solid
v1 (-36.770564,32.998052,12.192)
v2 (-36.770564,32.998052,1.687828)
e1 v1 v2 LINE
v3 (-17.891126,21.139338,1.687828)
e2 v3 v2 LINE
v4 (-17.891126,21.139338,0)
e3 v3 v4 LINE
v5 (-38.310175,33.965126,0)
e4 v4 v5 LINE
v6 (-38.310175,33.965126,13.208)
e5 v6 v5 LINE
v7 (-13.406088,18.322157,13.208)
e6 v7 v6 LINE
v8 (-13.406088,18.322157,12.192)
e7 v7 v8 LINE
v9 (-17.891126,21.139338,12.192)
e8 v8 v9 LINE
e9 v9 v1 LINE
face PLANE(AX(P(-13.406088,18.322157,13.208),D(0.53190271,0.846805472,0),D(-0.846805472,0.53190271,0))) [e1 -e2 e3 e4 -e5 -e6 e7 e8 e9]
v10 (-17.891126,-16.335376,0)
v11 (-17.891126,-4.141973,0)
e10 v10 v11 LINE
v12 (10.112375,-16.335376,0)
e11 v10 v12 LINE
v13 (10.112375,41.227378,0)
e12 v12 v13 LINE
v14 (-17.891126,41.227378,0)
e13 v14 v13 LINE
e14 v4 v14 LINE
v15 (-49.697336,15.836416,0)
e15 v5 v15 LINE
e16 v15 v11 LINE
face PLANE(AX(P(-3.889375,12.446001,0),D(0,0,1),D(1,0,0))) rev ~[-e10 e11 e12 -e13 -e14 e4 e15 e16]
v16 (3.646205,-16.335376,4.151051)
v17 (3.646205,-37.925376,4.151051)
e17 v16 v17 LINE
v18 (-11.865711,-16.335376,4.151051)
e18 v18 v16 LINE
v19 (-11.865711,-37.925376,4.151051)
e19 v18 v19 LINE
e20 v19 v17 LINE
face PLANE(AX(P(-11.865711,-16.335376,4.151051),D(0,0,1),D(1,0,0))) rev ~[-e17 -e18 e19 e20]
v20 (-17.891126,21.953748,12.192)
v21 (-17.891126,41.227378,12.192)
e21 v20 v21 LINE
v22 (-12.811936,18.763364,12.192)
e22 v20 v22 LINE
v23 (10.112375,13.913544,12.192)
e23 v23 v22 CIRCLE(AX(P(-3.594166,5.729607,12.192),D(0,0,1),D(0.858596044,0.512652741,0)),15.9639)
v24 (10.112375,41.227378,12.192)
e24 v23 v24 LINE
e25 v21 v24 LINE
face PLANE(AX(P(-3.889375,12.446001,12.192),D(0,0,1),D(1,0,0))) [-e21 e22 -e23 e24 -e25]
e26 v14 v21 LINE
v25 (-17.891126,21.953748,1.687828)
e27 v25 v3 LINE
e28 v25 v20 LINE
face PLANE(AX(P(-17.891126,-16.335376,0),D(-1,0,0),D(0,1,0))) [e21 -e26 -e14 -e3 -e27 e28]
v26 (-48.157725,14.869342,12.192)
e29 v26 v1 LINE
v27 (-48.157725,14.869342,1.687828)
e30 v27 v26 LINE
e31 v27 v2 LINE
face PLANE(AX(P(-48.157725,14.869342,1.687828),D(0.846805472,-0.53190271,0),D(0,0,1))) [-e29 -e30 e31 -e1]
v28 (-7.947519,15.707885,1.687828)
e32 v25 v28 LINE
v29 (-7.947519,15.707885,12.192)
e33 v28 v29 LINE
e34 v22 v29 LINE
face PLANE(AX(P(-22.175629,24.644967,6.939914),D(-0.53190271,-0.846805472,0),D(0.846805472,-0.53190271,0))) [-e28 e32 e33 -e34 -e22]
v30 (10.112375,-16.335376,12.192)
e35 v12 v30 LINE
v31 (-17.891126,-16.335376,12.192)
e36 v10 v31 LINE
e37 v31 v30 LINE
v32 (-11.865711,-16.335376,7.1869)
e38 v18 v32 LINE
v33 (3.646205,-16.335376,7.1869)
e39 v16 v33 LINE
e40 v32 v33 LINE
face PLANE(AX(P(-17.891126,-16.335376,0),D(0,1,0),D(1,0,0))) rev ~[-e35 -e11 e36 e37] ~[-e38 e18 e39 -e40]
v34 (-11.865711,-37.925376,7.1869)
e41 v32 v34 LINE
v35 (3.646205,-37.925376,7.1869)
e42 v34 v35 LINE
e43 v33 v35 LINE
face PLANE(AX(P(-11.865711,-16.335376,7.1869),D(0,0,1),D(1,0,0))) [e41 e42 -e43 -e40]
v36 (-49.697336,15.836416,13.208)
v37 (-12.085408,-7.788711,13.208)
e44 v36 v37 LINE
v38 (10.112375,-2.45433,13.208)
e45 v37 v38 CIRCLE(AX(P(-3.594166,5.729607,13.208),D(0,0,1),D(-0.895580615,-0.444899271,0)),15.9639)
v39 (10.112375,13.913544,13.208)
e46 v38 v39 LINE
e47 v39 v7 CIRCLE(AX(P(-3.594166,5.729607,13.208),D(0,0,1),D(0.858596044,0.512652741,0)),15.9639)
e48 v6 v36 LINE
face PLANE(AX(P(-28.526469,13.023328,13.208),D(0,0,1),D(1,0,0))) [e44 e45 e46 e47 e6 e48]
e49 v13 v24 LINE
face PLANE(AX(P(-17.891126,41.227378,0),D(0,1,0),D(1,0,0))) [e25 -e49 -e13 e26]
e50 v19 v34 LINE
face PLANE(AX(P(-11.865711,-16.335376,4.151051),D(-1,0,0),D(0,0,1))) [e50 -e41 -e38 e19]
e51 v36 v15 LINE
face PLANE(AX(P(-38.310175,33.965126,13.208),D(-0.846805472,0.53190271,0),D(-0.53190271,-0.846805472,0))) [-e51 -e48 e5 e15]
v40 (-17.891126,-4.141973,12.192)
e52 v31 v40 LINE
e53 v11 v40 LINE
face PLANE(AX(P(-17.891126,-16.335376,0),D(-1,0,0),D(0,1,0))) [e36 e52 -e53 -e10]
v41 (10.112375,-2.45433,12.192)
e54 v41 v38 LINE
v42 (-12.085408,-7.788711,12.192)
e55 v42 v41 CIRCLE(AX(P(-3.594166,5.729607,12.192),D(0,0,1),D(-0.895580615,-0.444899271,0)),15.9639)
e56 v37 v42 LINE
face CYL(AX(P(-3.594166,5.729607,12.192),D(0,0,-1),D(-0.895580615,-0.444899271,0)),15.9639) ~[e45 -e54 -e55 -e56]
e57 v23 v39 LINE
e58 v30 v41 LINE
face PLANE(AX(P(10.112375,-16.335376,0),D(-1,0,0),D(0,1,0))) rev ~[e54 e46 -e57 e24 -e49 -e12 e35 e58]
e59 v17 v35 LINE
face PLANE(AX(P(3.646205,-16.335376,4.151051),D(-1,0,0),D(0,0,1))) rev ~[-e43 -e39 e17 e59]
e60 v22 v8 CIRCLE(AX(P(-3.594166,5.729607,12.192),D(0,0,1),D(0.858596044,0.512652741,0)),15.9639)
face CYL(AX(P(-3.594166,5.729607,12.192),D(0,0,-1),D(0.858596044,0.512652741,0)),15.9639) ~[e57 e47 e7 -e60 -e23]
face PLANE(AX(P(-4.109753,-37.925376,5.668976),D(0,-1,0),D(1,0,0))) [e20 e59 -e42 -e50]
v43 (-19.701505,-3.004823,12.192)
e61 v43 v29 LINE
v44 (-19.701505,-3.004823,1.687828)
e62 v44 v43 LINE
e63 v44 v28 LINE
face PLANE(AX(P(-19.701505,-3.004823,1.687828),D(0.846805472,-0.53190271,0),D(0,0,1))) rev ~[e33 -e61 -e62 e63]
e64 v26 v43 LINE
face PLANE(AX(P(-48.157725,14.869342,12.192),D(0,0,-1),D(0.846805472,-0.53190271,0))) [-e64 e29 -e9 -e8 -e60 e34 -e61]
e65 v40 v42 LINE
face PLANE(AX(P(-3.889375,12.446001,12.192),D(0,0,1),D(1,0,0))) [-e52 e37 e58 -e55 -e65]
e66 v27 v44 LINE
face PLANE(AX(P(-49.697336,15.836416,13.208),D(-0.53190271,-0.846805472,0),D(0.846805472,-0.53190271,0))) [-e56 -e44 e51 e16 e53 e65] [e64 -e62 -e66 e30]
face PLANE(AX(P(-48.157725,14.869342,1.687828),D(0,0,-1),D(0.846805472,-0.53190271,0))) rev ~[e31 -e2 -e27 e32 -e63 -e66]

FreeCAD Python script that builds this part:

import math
import FreeCAD as App
import Part
import Sketcher
from FreeCAD import Vector
Q = App.Units.Quantity

doc = App.newDocument("Part")
body = doc.addObject("PartDesign::Body", "Body")

# Sketch on XY plane
sketch1 = body.newObject("Sketcher::SketchObject", "Sketch")
sketch1.AttachmentSupport = (doc.getObject("XY_Plane"), [""])
sketch1.MapMode = "FlatFace"
sketch1.addGeometry([
    Part.LineSegment(Vector(-18, 41, 0), Vector(-18, -16, 0)),
    Part.LineSegment(Vector(-18, -16, 0), Vector(10, -16, 0)),
    Part.LineSegment(Vector(10, -16, 0), Vector(10, 41, 0)),
    Part.LineSegment(Vector(10, 41, 0), Vector(-18, 41, 0)),
], False)
sketch1.addConstraint([
    Sketcher.Constraint("Coincident", 0, 2, 1, 1),
    Sketcher.Constraint("Coincident", 1, 2, 2, 1),
    Sketcher.Constraint("Coincident", 2, 2, 3, 1),
    Sketcher.Constraint("Coincident", 3, 2, 0, 1),
    Sketcher.Constraint("Vertical", 0),
    Sketcher.Constraint("Horizontal", 1),
    Sketcher.Constraint("Vertical", 2),
    Sketcher.Constraint("Horizontal", 3),
    Sketcher.Constraint("DistanceX", 1, 1, 1, 2, Q("1.1025 in")),
    Sketcher.Constraint("DistanceY", 0, 2, 0, 1, 57.562754),
    Sketcher.Constraint("DistanceX", 0, 2, -1, 1, 17.891126),
    Sketcher.Constraint("DistanceY", 0, 2, -1, 1, 16.335376),
])
pad1 = body.newObject("PartDesign::Pad", "Pad")
pad1.Profile = sketch1
pad1.Length = Q("0.48 in")

# Sketch on XZ plane
sketch2 = body.newObject("Sketcher::SketchObject", "Sketch001")
sketch2.AttachmentSupport = (doc.getObject("XZ_Plane"), [""])
sketch2.MapMode = "FlatFace"
sketch2.AttachmentOffset = App.Placement(Vector(0, 0, 16.335376), App.Rotation())
sketch2.addGeometry([
    Part.LineSegment(Vector(-11.9, 7.2, 0), Vector(-11.9, 4.2, 0)),
    Part.LineSegment(Vector(-11.9, 4.2, 0), Vector(3.6, 4.2, 0)),
    Part.LineSegment(Vector(3.6, 4.2, 0), Vector(3.6, 7.2, 0)),
    Part.LineSegment(Vector(3.6, 7.2, 0), Vector(-11.9, 7.2, 0)),
], False)
sketch2.addConstraint([
    Sketcher.Constraint("Coincident", 0, 2, 1, 1),
    Sketcher.Constraint("Coincident", 1, 2, 2, 1),
    Sketcher.Constraint("Coincident", 2, 2, 3, 1),
    Sketcher.Constraint("Coincident", 3, 2, 0, 1),
    Sketcher.Constraint("Vertical", 0),
    Sketcher.Constraint("Horizontal", 1),
    Sketcher.Constraint("Vertical", 2),
    Sketcher.Constraint("Horizontal", 3),
    Sketcher.Constraint("DistanceY", 0, 2, 0, 1, 3.035848),
    Sketcher.Constraint("DistanceY", -1, 1, 2, 2, 7.1869),
    Sketcher.Constraint("DistanceX", 1, 1, 1, 2, 15.511916),
    Sketcher.Constraint("DistanceX", 0, 2, -1, 1, 11.865711),
])
pad2 = body.newObject("PartDesign::Pad", "Pad001")
pad2.Profile = sketch2
pad2.Length = Q("0.85 in")

# Sketch on XY plane
sketch3 = body.newObject("Sketcher::SketchObject", "Sketch002")
sketch3.AttachmentSupport = (doc.getObject("XY_Plane"), [""])
sketch3.MapMode = "FlatFace"
sketch3.AttachmentOffset = App.Placement(Vector(0, 0, 0.48 * 25.4), App.Rotation())
sketch3.addGeometry([
    Part.LineSegment(Vector(10, -2, 0), Vector(10, 14, 0)),
    Part.ArcOfCircle(Part.Circle(Vector(-4, 6, 0), Vector(0, 0, 1), 16), math.radians(31), math.radians(154)),
    Part.LineSegment(Vector(-18, 13, 0), Vector(-18, -1, 0)),
    Part.ArcOfCircle(Part.Circle(Vector(-4, 6, 0), Vector(0, 0, 1), 16), math.radians(-154), math.radians(-31)),
], False)
sketch3.addConstraint([
    Sketcher.Constraint("Coincident", 0, 2, 1, 1),
    Sketcher.Constraint("Coincident", 1, 2, 2, 1),
    Sketcher.Constraint("Coincident", 2, 2, 3, 1),
    Sketcher.Constraint("Coincident", 3, 2, 0, 1),
    Sketcher.Constraint("Vertical", 0),
    Sketcher.Constraint("Vertical", 2),
    Sketcher.Constraint("Coincident", 3, 3, 1, 3),
    Sketcher.Constraint("Equal", 1, 3),
    Sketcher.Constraint("Radius", 1, Q("0.6285 in")),
    Sketcher.Constraint("DistanceX", 1, 2, 0, 2, Q("1.1025 in")),
    Sketcher.Constraint("DistanceY", 0, 1, 0, 2, 16.367874),
    Sketcher.Constraint("DistanceY", 2, 2, -1, 1, 1.37272),
    Sketcher.Constraint("DistanceX", 1, 3, -1, 1, 3.594166),
])
pad3 = body.newObject("PartDesign::Pad", "Pad002")
pad3.Profile = sketch3
pad3.Length = Q("0.04 in")

# Sketch on XY plane
sketch4 = body.newObject("Sketcher::SketchObject", "Sketch003")
sketch4.AttachmentSupport = (doc.getObject("XY_Plane"), [""])
sketch4.MapMode = "FlatFace"
sketch4.AttachmentOffset = App.Placement(Vector(0, 0, 0.52 * 25.4), App.Rotation())
sketch4.addGeometry([
    Part.ArcOfCircle(Part.Circle(Vector(-4, 6, 0), Vector(0, 0, 1), 16), math.radians(128), math.radians(154)),  # 0
    Part.LineSegment(Vector(-13, 18, 0), Vector(-38, 34, 0)),  # 1
    Part.LineSegment(Vector(-38, 34, 0), Vector(-50, 16, 0)),  # 2
    Part.LineSegment(Vector(-50, 16, 0), Vector(-12, -8, 0)),  # 3
    Part.ArcOfCircle(Part.Circle(Vector(-4, 6, 0), Vector(0, 0, 1), 16), math.radians(-154), math.radians(-122)),  # 4
    Part.LineSegment(Vector(-18, -1, 0), Vector(-18, 13, 0)),  # 5
], False)
sketch4.addConstraint([
    Sketcher.Constraint("Coincident", 0, 1, 1, 1),
    Sketcher.Constraint("Coincident", 1, 2, 2, 1),
    Sketcher.Constraint("Coincident", 2, 2, 3, 1),
    Sketcher.Constraint("Tangent", 3, 2, 4, 2),
    Sketcher.Constraint("Coincident", 4, 1, 5, 1),
    Sketcher.Constraint("Coincident", 5, 2, 0, 2),
    Sketcher.Constraint("Vertical", 5),
    Sketcher.Constraint("Coincident", 4, 3, 0, 3),
    Sketcher.Constraint("Equal", 0, 4),
    Sketcher.Constraint("Perpendicular", 1, 2),
    Sketcher.Constraint("Perpendicular", 2, 3),
    Sketcher.Constraint("Radius", 0, Q("0.6285 in")),
    Sketcher.Constraint("DistanceY", 5, 1, 5, 2, 14.204655),
    Sketcher.Constraint("DistanceX", 3, 2, -1, 1, 12.085408),
    Sketcher.Constraint("DistanceY", 3, 2, -1, 1, 7.788711),
    Sketcher.Constraint("DistanceY", 4, 1, -1, 1, 1.37272),
    Sketcher.Constraint("DistanceX", 0, 1, 0, 3, 9.811921),
    Sketcher.Constraint("DistanceY", 0, 1, 1, 2, 15.642969),
])
pad4 = body.newObject("PartDesign::Pad", "Pad003")
pad4.Profile = sketch4
pad4.Length = Q("0.52 in")
pad4.Reversed = True

# Sketch on an angled plane
sketch5 = body.newObject("Sketcher::SketchObject", "Sketch004")
sketch5.Placement = App.Placement(Vector(-6.927386, -11.028612, 0), App.Rotation(Vector(0.846805472, -0.53190271, 0), Vector(0, 0, 1), Vector(-0.53190271, -0.846805472, 0), "ZXY"))
sketch5.addGeometry([
    Part.LineSegment(Vector(-49, 12, 0), Vector(-49, 2, 0)),
    Part.LineSegment(Vector(-49, 2, 0), Vector(-15, 2, 0)),
    Part.LineSegment(Vector(-15, 2, 0), Vector(-15, 12, 0)),
    Part.LineSegment(Vector(-15, 12, 0), Vector(-49, 12, 0)),
], False)
sketch5.addConstraint([
    Sketcher.Constraint("Coincident", 0, 2, 1, 1),
    Sketcher.Constraint("Coincident", 1, 2, 2, 1),
    Sketcher.Constraint("Coincident", 2, 2, 3, 1),
    Sketcher.Constraint("Coincident", 3, 2, 0, 1),
    Sketcher.Constraint("Vertical", 0),
    Sketcher.Constraint("Horizontal", 1),
    Sketcher.Constraint("Vertical", 2),
    Sketcher.Constraint("Horizontal", 3),
    Sketcher.Constraint("DistanceX", 1, 1, 1, 2, Q("1.323 in")),
    Sketcher.Constraint("DistanceY", -1, 1, 2, 2, Q("0.48 in")),
    Sketcher.Constraint("DistanceY", 0, 2, 0, 1, 10.504172),
    Sketcher.Constraint("DistanceX", 0, 2, -1, 1, 48.689269),
])
pocket1 = body.newObject("PartDesign::Pocket", "Pocket")
pocket1.Profile = sketch5
pocket1.Length = Q("0.87 in")

doc.recompute()
